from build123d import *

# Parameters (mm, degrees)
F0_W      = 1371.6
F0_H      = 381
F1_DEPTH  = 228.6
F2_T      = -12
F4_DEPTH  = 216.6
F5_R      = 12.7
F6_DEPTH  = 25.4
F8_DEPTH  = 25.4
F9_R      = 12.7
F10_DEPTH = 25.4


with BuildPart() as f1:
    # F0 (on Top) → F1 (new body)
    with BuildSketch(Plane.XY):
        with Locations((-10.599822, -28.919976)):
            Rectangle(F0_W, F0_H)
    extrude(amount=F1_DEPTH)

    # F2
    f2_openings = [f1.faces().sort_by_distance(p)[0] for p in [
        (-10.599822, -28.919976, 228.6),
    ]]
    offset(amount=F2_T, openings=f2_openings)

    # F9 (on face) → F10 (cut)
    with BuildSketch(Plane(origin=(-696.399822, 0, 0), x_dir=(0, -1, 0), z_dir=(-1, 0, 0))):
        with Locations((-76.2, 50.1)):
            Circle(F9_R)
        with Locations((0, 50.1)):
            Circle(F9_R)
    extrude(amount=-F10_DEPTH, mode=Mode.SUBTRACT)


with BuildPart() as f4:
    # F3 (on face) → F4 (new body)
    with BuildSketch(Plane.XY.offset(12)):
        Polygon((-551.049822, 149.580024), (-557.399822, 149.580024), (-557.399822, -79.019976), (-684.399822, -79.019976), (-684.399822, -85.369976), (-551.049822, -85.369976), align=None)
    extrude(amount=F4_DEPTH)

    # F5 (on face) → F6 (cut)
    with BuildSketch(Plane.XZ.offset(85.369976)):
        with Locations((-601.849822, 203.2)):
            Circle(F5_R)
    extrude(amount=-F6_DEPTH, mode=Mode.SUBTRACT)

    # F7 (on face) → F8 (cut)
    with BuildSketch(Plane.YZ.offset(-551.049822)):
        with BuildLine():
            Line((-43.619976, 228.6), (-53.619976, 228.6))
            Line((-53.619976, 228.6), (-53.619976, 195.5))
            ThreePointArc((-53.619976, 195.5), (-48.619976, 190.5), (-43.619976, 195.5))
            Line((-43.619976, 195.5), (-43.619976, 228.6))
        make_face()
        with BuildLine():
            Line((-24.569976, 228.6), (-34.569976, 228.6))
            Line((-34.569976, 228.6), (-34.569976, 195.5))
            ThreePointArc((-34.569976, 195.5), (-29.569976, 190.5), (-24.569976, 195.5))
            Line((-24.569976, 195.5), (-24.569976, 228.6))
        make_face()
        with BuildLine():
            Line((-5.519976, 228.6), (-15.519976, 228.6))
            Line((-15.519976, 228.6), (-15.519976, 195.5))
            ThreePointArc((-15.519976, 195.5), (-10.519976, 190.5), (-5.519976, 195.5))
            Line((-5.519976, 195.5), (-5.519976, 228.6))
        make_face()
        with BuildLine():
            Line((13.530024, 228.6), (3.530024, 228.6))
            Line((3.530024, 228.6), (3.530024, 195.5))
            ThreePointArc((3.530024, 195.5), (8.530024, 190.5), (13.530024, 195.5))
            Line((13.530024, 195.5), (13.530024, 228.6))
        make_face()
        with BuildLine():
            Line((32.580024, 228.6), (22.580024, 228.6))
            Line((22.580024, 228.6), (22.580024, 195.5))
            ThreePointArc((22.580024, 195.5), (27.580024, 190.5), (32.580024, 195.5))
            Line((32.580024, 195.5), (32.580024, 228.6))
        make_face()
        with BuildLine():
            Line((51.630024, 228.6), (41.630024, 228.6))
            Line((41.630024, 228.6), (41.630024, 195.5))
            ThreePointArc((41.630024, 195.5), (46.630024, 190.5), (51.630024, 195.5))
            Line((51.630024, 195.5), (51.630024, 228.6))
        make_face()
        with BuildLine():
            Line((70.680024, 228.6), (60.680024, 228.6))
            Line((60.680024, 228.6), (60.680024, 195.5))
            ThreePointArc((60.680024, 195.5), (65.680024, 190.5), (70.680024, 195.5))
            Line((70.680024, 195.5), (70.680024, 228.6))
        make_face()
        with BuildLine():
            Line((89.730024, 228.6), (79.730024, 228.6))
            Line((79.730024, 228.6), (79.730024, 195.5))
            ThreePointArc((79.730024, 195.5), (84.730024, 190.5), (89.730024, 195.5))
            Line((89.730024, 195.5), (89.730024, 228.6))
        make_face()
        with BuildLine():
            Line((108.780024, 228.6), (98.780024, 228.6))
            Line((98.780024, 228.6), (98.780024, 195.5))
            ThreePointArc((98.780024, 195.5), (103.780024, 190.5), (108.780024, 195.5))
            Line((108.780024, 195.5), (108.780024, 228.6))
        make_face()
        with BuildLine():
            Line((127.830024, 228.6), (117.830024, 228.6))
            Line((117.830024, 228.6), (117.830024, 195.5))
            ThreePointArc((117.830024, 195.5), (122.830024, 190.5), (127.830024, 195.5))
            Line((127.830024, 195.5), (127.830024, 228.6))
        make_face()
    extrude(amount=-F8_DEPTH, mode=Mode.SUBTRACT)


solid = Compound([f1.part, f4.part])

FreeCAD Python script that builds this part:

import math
import FreeCAD as App
import Part
import Sketcher

V = App.Vector
Q = App.Units.Quantity


def faces_at(feature, points):
    """Names of the faces that lie closest to the given points."""
    faces = feature.Shape.Faces
    near = lambda p: min(range(len(faces)), key=lambda i: faces[i].distToShape(Part.Vertex(*p))[0])
    return sorted({f"Face{near(p) + 1}" for p in points})

doc = App.newDocument("Part")
params = doc.addObject("Spreadsheet::Sheet", "Params")
for row, (alias, value) in enumerate([
    ("sketch1_width", "54 in"),
    ("sketch1_height", "15 in"),
    ("pad1_length", "9 in"),
    ("thickness_wall", "12 mm"),
    ("sketch2_diameter", "1 in"),
    ("pocket1_length", "1 in"),
    ("sketch3_width", "5 in"),
    ("sketch3_height", "9 in"),
    ("sketch3_width2", "0.25 in"),
    ("pad2_length", "216.6 mm"),
    ("sketch4_diameter", "1 in"),
    ("pocket2_length", "1 in"),
    ("pocket3_length", "1 in"),
], start=1):
    params.set(f"A{row}", alias)
    params.set(f"B{row}", "=" + value)
    params.setAlias(f"B{row}", alias)

body = doc.addObject("PartDesign::Body", "Body")

# Sketch on XY plane
sketch1 = body.newObject("Sketcher::SketchObject", "Sketch")
sketch1.AttachmentSupport = (doc.getObject("XY_Plane"), [""])
sketch1.MapMode = "FlatFace"
sketch1.addGeometry([
    Part.LineSegment(V(-696, 162, 0), V(-696, -219, 0)),
    Part.LineSegment(V(-696, -219, 0), V(675, -219, 0)),
    Part.LineSegment(V(675, -219, 0), V(675, 162, 0)),
    Part.LineSegment(V(675, 162, 0), V(-696, 162, 0)),
], False)
sketch1.addConstraint([
    Sketcher.Constraint("Coincident", 0, 2, 1, 1),
    Sketcher.Constraint("Coincident", 1, 2, 2, 1),
    Sketcher.Constraint("Coincident", 2, 2, 3, 1),
    Sketcher.Constraint("Coincident", 3, 2, 0, 1),
    Sketcher.Constraint("Vertical", 0),
    Sketcher.Constraint("Horizontal", 1),
    Sketcher.Constraint("Vertical", 2),
    Sketcher.Constraint("Horizontal", 3),
    Sketcher.Constraint("DistanceX", 1, 1, 1, 2, Q("54 in")),
    Sketcher.Constraint("DistanceY", 0, 2, 0, 1, Q("15 in")),
    Sketcher.Constraint("DistanceX", 0, 2, -1, 1, 696.399822),
    Sketcher.Constraint("DistanceY", 0, 2, -1, 1, 219.419976),
])
sketch1.setExpression("Constraints[8]", "Params.sketch1_width")
sketch1.setExpression("Constraints[9]", "Params.sketch1_height")
pad1 = body.newObject("PartDesign::Pad", "Pad")
pad1.Profile = sketch1
pad1.setExpression("Length", "Params.pad1_length")
doc.recompute()

thickness = body.newObject("PartDesign::Thickness", "Thickness")
thickness.Base = (pad1, faces_at(pad1, [(-10.6, -28.92, 228.6)]))
thickness.setExpression("Value", "Params.thickness_wall")
thickness.Reversed = True
thickness.Join = "Arc"

# Sketch on YZ plane
sketch2 = body.newObject("Sketcher::SketchObject", "Sketch001")
sketch2.AttachmentSupport = (doc.getObject("YZ_Plane"), [""])
sketch2.MapMode = "FlatFace"
sketch2.AttachmentOffset = App.Placement(V(0, 0, -696.399822), App.Rotation())
sketch2.addGeometry([
    Part.Circle(V(76, 50, 0), V(0, 0, 1), 13),
    Part.Circle(V(0, 50, 0), V(0, 0, 1), 13),
], False)
sketch2.addConstraint([
    Sketcher.Constraint("Equal", 0, 1),
    Sketcher.Constraint("PointOnObject", 1, 3, -2),
    Sketcher.Constraint("Horizontal", 0, 3, 1, 3),
    Sketcher.Constraint("Diameter", 0, Q("1 in")),
    Sketcher.Constraint("DistanceX", -1, 1, 0, 3, Q("3 in")),
    Sketcher.Constraint("DistanceY", -1, 1, 0, 3, 50.1),
])
sketch2.setExpression("Constraints[3]", "Params.sketch2_diameter")
pocket1 = body.newObject("PartDesign::Pocket", "Pocket")
pocket1.Profile = sketch2
pocket1.setExpression("Length", "Params.pocket1_length")
pocket1.Reversed = True
body2 = doc.addObject("PartDesign::Body", "Body001")

# Sketch on XY plane
sketch3 = body2.newObject("Sketcher::SketchObject", "Sketch002")
sketch3.AttachmentSupport = (doc.getObject("XY_Plane001"), [""])
sketch3.MapMode = "FlatFace"
sketch3.AttachmentOffset = App.Placement(V(0, 0, 12), App.Rotation())
sketch3.addGeometry([
    Part.LineSegment(V(-551, 150, 0), V(-557, 150, 0)),  # 0
    Part.LineSegment(V(-557, 150, 0), V(-557, -79, 0)),  # 1
    Part.LineSegment(V(-557, -79, 0), V(-684, -79, 0)),  # 2
    Part.LineSegment(V(-684, -79, 0), V(-684, -85, 0)),  # 3
    Part.LineSegment(V(-684, -85, 0), V(-551, -85, 0)),  # 4
    Part.LineSegment(V(-551, -85, 0), V(-551, 150, 0)),  # 5
], False)
sketch3.addConstraint([
    Sketcher.Constraint("Coincident", 0, 2, 1, 1),
    Sketcher.Constraint("Coincident", 1, 2, 2, 1),
    Sketcher.Constraint("Coincident", 2, 2, 3, 1),
    Sketcher.Constraint("Coincident", 3, 2, 4, 1),
    Sketcher.Constraint("Coincident", 4, 2, 5, 1),
    Sketcher.Constraint("Coincident", 5, 2, 0, 1),
    Sketcher.Constraint("Horizontal", 0),
    Sketcher.Constraint("Vertical", 1),
    Sketcher.Constraint("Horizontal", 2),
    Sketcher.Constraint("Vertical", 3),
    Sketcher.Constraint("Horizontal", 4),
    Sketcher.Constraint("Vertical", 5),
    Sketcher.Constraint("Equal", 0, 3),
    Sketcher.Constraint("DistanceX", 2, 2, 2, 1, Q("5 in")),
    Sketcher.Constraint("DistanceY", 1, 2, 1, 1, Q("9 in")),
    Sketcher.Constraint("DistanceX", 0, 2, 0, 1, Q("0.25 in")),
    Sketcher.Constraint("DistanceX", 0, 2, -1, 1, 557.399822),
    Sketcher.Constraint("DistanceY", -1, 1, 0, 2, 149.580024),
])
sketch3.setExpression("Constraints[13]", "Params.sketch3_width")
sketch3.setExpression("Constraints[14]", "Params.sketch3_height")
sketch3.setExpression("Constraints[15]", "Params.sketch3_width2")
pad2 = body2.newObject("PartDesign::Pad", "Pad001")
pad2.Profile = sketch3
pad2.setExpression("Length", "Params.pad2_length")

# Sketch on XZ plane
sketch4 = body2.newObject("Sketcher::SketchObject", "Sketch003")
sketch4.AttachmentSupport = (doc.getObject("XZ_Plane001"), [""])
sketch4.MapMode = "FlatFace"
sketch4.AttachmentOffset = App.Placement(V(0, 0, 85.369976), App.Rotation())
sketch4.addGeometry(Part.Circle(V(-602, 203, 0), V(0, 0, 1), 13), False)
sketch4.addConstraint([
    Sketcher.Constraint("Diameter", 0, Q("1 in")),
    Sketcher.Constraint("DistanceY", -1, 1, 0, 3, Q("8 in")),
    Sketcher.Constraint("DistanceX", 0, 3, -1, 1, 601.849822),
])
sketch4.setExpression("Constraints[0]", "Params.sketch4_diameter")
pocket2 = body2.newObject("PartDesign::Pocket", "Pocket001")
pocket2.Profile = sketch4
pocket2.setExpression("Length", "Params.pocket2_length")

# Sketch on YZ plane
sketch5 = body2.newObject("Sketcher::SketchObject", "Sketch004")
sketch5.AttachmentSupport = (doc.getObject("YZ_Plane001"), [""])
sketch5.MapMode = "FlatFace"
sketch5.AttachmentOffset = App.Placement(V(0, 0, -551.049822), App.Rotation())
sketch5.addGeometry([
    Part.LineSegment(V(-44, 229, 0), V(-54, 229, 0)),  # 0
    Part.LineSegment(V(-54, 229, 0), V(-54, 196, 0)),  # 1
    Part.ArcOfCircle(Part.Circle(V(-49, 196, 0), V(0, 0, 1), 5), math.radians(180), math.radians(360)),  # 2
    Part.LineSegment(V(-44, 196, 0), V(-44, 229, 0)),  # 3
    Part.LineSegment(V(-25, 229, 0), V(-35, 229, 0)),  # 4
    Part.LineSegment(V(-35, 229, 0), V(-35, 196, 0)),  # 5
    Part.ArcOfCircle(Part.Circle(V(-30, 196, 0), V(0, 0, 1), 5), math.radians(180), math.radians(360)),  # 6
    Part.LineSegment(V(-25, 196, 0), V(-25, 229, 0)),  # 7
    Part.LineSegment(V(-6, 229, 0), V(-16, 229, 0)),  # 8
    Part.LineSegment(V(-16, 229, 0), V(-16, 196, 0)),  # 9
    Part.ArcOfCircle(Part.Circle(V(-11, 196, 0), V(0, 0, 1), 5), math.radians(180), math.radians(360)),  # 10
    Part.LineSegment(V(-6, 196, 0), V(-6, 229, 0)),  # 11
    Part.LineSegment(V(14, 229, 0), V(4, 229, 0)),  # 12
    Part.LineSegment(V(4, 229, 0), V(4, 196, 0)),  # 13
    Part.ArcOfCircle(Part.Circle(V(9, 196, 0), V(0, 0, 1), 5), math.radians(180), math.radians(360)),  # 14
    Part.LineSegment(V(14, 196, 0), V(14, 229, 0)),  # 15
    Part.LineSegment(V(33, 229, 0), V(23, 229, 0)),  # 16
    Part.LineSegment(V(23, 229, 0), V(23, 196, 0)),  # 17
    Part.ArcOfCircle(Part.Circle(V(28, 196, 0), V(0, 0, 1), 5), math.radians(180), math.radians(360)),  # 18
    Part.LineSegment(V(33, 196, 0), V(33, 229, 0)),  # 19
    Part.LineSegment(V(52, 229, 0), V(42, 229, 0)),  # 20
    Part.LineSegment(V(42, 229, 0), V(42, 196, 0)),  # 21
    Part.ArcOfCircle(Part.Circle(V(47, 196, 0), V(0, 0, 1), 5), math.radians(180), math.radians(360)),  # 22
    Part.LineSegment(V(52, 196, 0), V(52, 229, 0)),  # 23
    Part.LineSegment(V(71, 229, 0), V(61, 229, 0)),  # 24
    Part.LineSegment(V(61, 229, 0), V(61, 196, 0)),  # 25
    Part.ArcOfCircle(Part.Circle(V(66, 196, 0), V(0, 0, 1), 5), math.radians(180), math.radians(360)),  # 26
    Part.LineSegment(V(71, 196, 0), V(71, 229, 0)),  # 27
    Part.LineSegment(V(90, 229, 0), V(80, 229, 0)),  # 28
    Part.LineSegment(V(80, 229, 0), V(80, 196, 0)),  # 29
    Part.ArcOfCircle(Part.Circle(V(85, 196, 0), V(0, 0, 1), 5), math.radians(180), math.radians(360)),  # 30
    Part.LineSegment(V(90, 196, 0), V(90, 229, 0)),  # 31
    Part.LineSegment(V(109, 229, 0), V(99, 229, 0)),  # 32
    Part.LineSegment(V(99, 229, 0), V(99, 196, 0)),  # 33
    Part.ArcOfCircle(Part.Circle(V(104, 196, 0), V(0, 0, 1), 5), math.radians(180), math.radians(360)),  # 34
    Part.LineSegment(V(109, 196, 0), V(109, 229, 0)),  # 35
    Part.LineSegment(V(128, 229, 0), V(118, 229, 0)),  # 36
    Part.LineSegment(V(118, 229, 0), V(118, 196, 0)),  # 37
    Part.ArcOfCircle(Part.Circle(V(123, 196, 0), V(0, 0, 1), 5), math.radians(180), math.radians(360)),  # 38
    Part.LineSegment(V(128, 196, 0), V(128, 229, 0)),  # 39
], False)
sketch5.addConstraint([
    Sketcher.Constraint("Coincident", 0, 2, 1, 1),
    Sketcher.Constraint("Tangent", 1, 2, 2, 1),
    Sketcher.Constraint("Tangent", 2, 2, 3, 1),
    Sketcher.Constraint("Coincident", 3, 2, 0, 1),
    Sketcher.Constraint("Coincident", 4, 2, 5, 1),
    Sketcher.Constraint("Tangent", 5, 2, 6, 1),
    Sketcher.Constraint("Tangent", 6, 2, 7, 1),
    Sketcher.Constraint("Coincident", 7, 2, 4, 1),
    Sketcher.Constraint("Coincident", 8, 2, 9, 1),
    Sketcher.Constraint("Tangent", 9, 2, 10, 1),
    Sketcher.Constraint("Tangent", 10, 2, 11, 1),
    Sketcher.Constraint("Coincident", 11, 2, 8, 1),
    Sketcher.Constraint("Coincident", 12, 2, 13, 1),
    Sketcher.Constraint("Tangent", 13, 2, 14, 1),
    Sketcher.Constraint("Tangent", 14, 2, 15, 1),
    Sketcher.Constraint("Coincident", 15, 2, 12, 1),
    Sketcher.Constraint("Coincident", 16, 2, 17, 1),
    Sketcher.Constraint("Tangent", 17, 2, 18, 1),
    Sketcher.Constraint("Tangent", 18, 2, 19, 1),
    Sketcher.Constraint("Coincident", 19, 2, 16, 1),
    Sketcher.Constraint("Coincident", 20, 2, 21, 1),
    Sketcher.Constraint("Tangent", 21, 2, 22, 1),
    Sketcher.Constraint("Tangent", 22, 2, 23, 1),
    Sketcher.Constraint("Coincident", 23, 2, 20, 1),
    Sketcher.Constraint("Coincident", 24, 2, 25, 1),
    Sketcher.Constraint("Tangent", 25, 2, 26, 1),
    Sketcher.Constraint("Tangent", 26, 2, 27, 1),
    Sketcher.Constraint("Coincident", 27, 2, 24, 1),
    Sketcher.Constraint("Coincident", 28, 2, 29, 1),
    Sketcher.Constraint("Tangent", 29, 2, 30, 1),
    Sketcher.Constraint("Tangent", 30, 2, 31, 1),
    Sketcher.Constraint("Coincident", 31, 2, 28, 1),
    Sketcher.Constraint("Coincident", 32, 2, 33, 1),
    Sketcher.Constraint("Tangent", 33, 2, 34, 1),
    Sketcher.Constraint("Tangent", 34, 2, 35, 1),
    Sketcher.Constraint("Coincident", 35, 2, 32, 1),
    Sketcher.Constraint("Coincident", 36, 2, 37, 1),
    Sketcher.Constraint("Tangent", 37, 2, 38, 1),
    Sketcher.Constraint("Tangent", 38, 2, 39, 1),
    Sketcher.Constraint("Coincident", 39, 2, 36, 1),
    Sketcher.Constraint("Horizontal", 0),
    Sketcher.Constraint("Vertical", 1),
    Sketcher.Constraint("Vertical", 3),
    Sketcher.Constraint("Horizontal", 4),
    Sketcher.Constraint("Vertical", 5),
    Sketcher.Constraint("Vertical", 7),
    Sketcher.Constraint("Horizontal", 8),
    Sketcher.Constraint("Vertical", 9),
    Sketcher.Constraint("Vertical", 11),
    Sketcher.Constraint("Horizontal", 12),
    Sketcher.Constraint("Vertical", 13),
    Sketcher.Constraint("Vertical", 15),
    Sketcher.Constraint("Horizontal", 16),
    Sketcher.Constraint("Vertical", 17),
    Sketcher.Constraint("Vertical", 19),
    Sketcher.Constraint("Horizontal", 20),
    Sketcher.Constraint("Vertical", 21),
    Sketcher.Constraint("Vertical", 23),
    Sketcher.Constraint("Horizontal", 24),
    Sketcher.Constraint("Vertical", 25),
    Sketcher.Constraint("Vertical", 27),
    Sketcher.Constraint("Horizontal", 28),
    Sketcher.Constraint("Vertical", 29),
    Sketcher.Constraint("Vertical", 31),
    Sketcher.Constraint("Horizontal", 32),
    Sketcher.Constraint("Vertical", 33),
    Sketcher.Constraint("Vertical", 35),
    Sketcher.Constraint("Horizontal", 36),
    Sketcher.Constraint("Vertical", 37),
    Sketcher.Constraint("Vertical", 39),
    Sketcher.Constraint("Equal", 2, 6),
    Sketcher.Constraint("Equal", 6, 10),
    Sketcher.Constraint("Equal", 10, 14),
    Sketcher.Constraint("Equal", 14, 18),
    Sketcher.Constraint("Equal", 18, 22),
    Sketcher.Constraint("Equal", 22, 26),
    Sketcher.Constraint("Equal", 26, 30),
    Sketcher.Constraint("Equal", 30, 34),
    Sketcher.Constraint("Equal", 34, 38),
    Sketcher.Constraint("Horizontal", 2, 3, 6, 3),
    Sketcher.Constraint("Horizontal", 6, 3, 10, 3),
    Sketcher.Constraint("Horizontal", 10, 3, 14, 3),
    Sketcher.Constraint("Horizontal", 14, 3, 18, 3),
    Sketcher.Constraint("Horizontal", 18, 3, 22, 3),
    Sketcher.Constraint("Horizontal", 22, 3, 26, 3),
    Sketcher.Constraint("Horizontal", 26, 3, 30, 3),
    Sketcher.Constraint("Horizontal", 30, 3, 34, 3),
    Sketcher.Constraint("Horizontal", 34, 3, 38, 3),
    Sketcher.Constraint("Horizontal", 3, 2, 4, 2),
    Sketcher.Constraint("Horizontal", 7, 2, 8, 2),
    Sketcher.Constraint("Horizontal", 11, 2, 12, 2),
    Sketcher.Constraint("Horizontal", 15, 2, 16, 2),
    Sketcher.Constraint("Horizontal", 19, 2, 20, 2),
    Sketcher.Constraint("Horizontal", 23, 2, 24, 2),
    Sketcher.Constraint("Horizontal", 27, 2, 28, 2),
    Sketcher.Constraint("Horizontal", 31, 2, 32, 2),
    Sketcher.Constraint("Horizontal", 35, 2, 36, 2),
    Sketcher.Constraint("DistanceY", -1, 1, 0, 2, Q("9 in")),
    Sketcher.Constraint("DistanceX", 2, 3, 18, 3, Q("3 in")),
    Sketcher.Constraint("DistanceX", 6, 3, 22, 3, Q("3 in")),
    Sketcher.Constraint("DistanceX", 10, 3, 26, 3, Q("3 in")),
    Sketcher.Constraint("DistanceX", 14, 3, 30, 3, Q("3 in")),
    Sketcher.Constraint("DistanceX", 18, 3, 34, 3, Q("3 in")),
    Sketcher.Constraint("DistanceX", 22, 3, 38, 3, Q("3 in")),
    Sketcher.Constraint("DistanceX", 2, 3, 10, 3, Q("1.5 in")),
    Sketcher.Constraint("DistanceX", 6, 3, 14, 3, Q("1.5 in")),
    Sketcher.Constraint("Radius", 2, 5.0),
    Sketcher.Constraint("DistanceX", 2, 3, 6, 3, Q("0.75 in")),
    Sketcher.Constraint("DistanceY", 1, 2, 1, 1, 33.1),
    Sketcher.Constraint("DistanceX", 2, 3, -1, 1, 48.619976),
])
pocket3 = body2.newObject("PartDesign::Pocket", "Pocket002")
pocket3.Profile = sketch5
pocket3.setExpression("Length", "Params.pocket3_length")

doc.recompute()
